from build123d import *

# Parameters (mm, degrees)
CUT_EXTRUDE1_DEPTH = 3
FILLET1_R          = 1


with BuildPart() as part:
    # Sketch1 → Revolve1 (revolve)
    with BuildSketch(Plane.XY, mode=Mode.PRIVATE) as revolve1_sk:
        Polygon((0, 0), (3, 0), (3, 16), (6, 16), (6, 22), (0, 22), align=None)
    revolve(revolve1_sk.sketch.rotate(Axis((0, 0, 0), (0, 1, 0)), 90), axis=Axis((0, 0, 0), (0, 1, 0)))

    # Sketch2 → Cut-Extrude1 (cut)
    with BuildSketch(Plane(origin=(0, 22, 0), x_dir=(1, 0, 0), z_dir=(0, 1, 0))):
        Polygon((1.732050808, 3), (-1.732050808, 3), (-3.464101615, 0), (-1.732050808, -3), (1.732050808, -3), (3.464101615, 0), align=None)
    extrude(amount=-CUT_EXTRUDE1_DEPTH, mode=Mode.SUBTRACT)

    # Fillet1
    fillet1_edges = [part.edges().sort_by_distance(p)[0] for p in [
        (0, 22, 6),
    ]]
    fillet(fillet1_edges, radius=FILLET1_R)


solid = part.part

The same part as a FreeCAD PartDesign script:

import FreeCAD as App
import Part
import Sketcher
from FreeCAD import Vector
Q = App.Units.Quantity


def edges_at(feature, points):
    """Names of the edges that pass closest to the given points."""
    edges = feature.Shape.Edges
    near = lambda p: min(range(len(edges)), key=lambda i: edges[i].distToShape(Part.Vertex(*p))[0])
    return sorted({f"Edge{near(p) + 1}" for p in points})

doc = App.newDocument("Part")
params = doc.addObject("Spreadsheet::Sheet", "Params")
for row, (alias, value) in enumerate([
    ("sketch1_width", "3 mm"),
    ("sketch1_height", "16 mm"),
    ("revolution_angle", "360 deg"),
    ("pocket1_length", "3 mm"),
    ("fillet_radius", "1 mm"),
], start=1):
    params.set(f"A{row}", alias)
    params.set(f"B{row}", "=" + value)
    params.setAlias(f"B{row}", alias)

body = doc.addObject("PartDesign::Body", "Body")

sketch1 = body.newObject("Sketcher::SketchObject", "Sketch")
sketch1.AttachmentSupport = (doc.getObject("XY_Plane"), [""])
sketch1.MapMode = "FlatFace"
sketch1.addGeometry(Part.LineSegment(Vector(0, 0, 0), Vector(3, 0, 0)), False)
sketch1.addGeometry(Part.LineSegment(Vector(3, 0, 0), Vector(3, 16, 0)), False)
sketch1.addGeometry(Part.LineSegment(Vector(3, 16, 0), Vector(6, 16, 0)), False)
sketch1.addGeometry(Part.LineSegment(Vector(6, 16, 0), Vector(6, 22, 0)), False)
sketch1.addGeometry(Part.LineSegment(Vector(6, 22, 0), Vector(0, 22, 0)), False)
sketch1.addGeometry(Part.LineSegment(Vector(0, 22, 0), Vector(0, 0, 0)), False)
sketch1.addConstraint(Sketcher.Constraint("Coincident", 0, 2, 1, 1))
sketch1.addConstraint(Sketcher.Constraint("Coincident", 1, 2, 2, 1))
sketch1.addConstraint(Sketcher.Constraint("Coincident", 2, 2, 3, 1))
sketch1.addConstraint(Sketcher.Constraint("Coincident", 3, 2, 4, 1))
sketch1.addConstraint(Sketcher.Constraint("Coincident", 4, 2, 5, 1))
sketch1.addConstraint(Sketcher.Constraint("Coincident", 5, 2, 0, 1))
sketch1.addConstraint(Sketcher.Constraint("Horizontal", 0))
sketch1.addConstraint(Sketcher.Constraint("Vertical", 1))
sketch1.addConstraint(Sketcher.Constraint("Horizontal", 2))
sketch1.addConstraint(Sketcher.Constraint("Vertical", 3))
sketch1.addConstraint(Sketcher.Constraint("Horizontal", 4))
sketch1.addConstraint(Sketcher.Constraint("Vertical", 5))
sketch1.addConstraint(Sketcher.Constraint("Coincident", 5, 2, -1, 1))
sketch1.addConstraint(Sketcher.Constraint("Equal", 0, 2))
sketch1.addConstraint(Sketcher.Constraint("Equal", 4, 3))
sketch1.addConstraint(Sketcher.Constraint("DistanceX", 0, 1, 0, 2, 3.0))
sketch1.addConstraint(Sketcher.Constraint("DistanceY", 1, 1, 1, 2, 16.0))
sketch1.setExpression("Constraints[15]", "Params.sketch1_width")
sketch1.setExpression("Constraints[16]", "Params.sketch1_height")
revolution = body.newObject("PartDesign::Revolution", "Revolution")
revolution.Profile = sketch1
revolution.ReferenceAxis = (sketch1, ["V_Axis"])
revolution.setExpression("Angle", "Params.revolution_angle")

sketch2 = body.newObject("Sketcher::SketchObject", "Sketch001")
sketch2.AttachmentSupport = (doc.getObject("XZ_Plane"), [""])
sketch2.MapMode = "FlatFace"
sketch2.AttachmentOffset = App.Placement(Vector(0, 0, -22), App.Rotation())
sketch2.addGeometry(Part.LineSegment(Vector(1.7, -3, 0), Vector(-1.7, -3, 0)), False)
sketch2.addGeometry(Part.LineSegment(Vector(-1.7, -3, 0), Vector(-3.5, 0, 0)), False)
sketch2.addGeometry(Part.LineSegment(Vector(-3.5, 0, 0), Vector(-1.7, 3, 0)), False)
sketch2.addGeometry(Part.LineSegment(Vector(-1.7, 3, 0), Vector(1.7, 3, 0)), False)
sketch2.addGeometry(Part.LineSegment(Vector(1.7, 3, 0), Vector(3.5, 0, 0)), False)
sketch2.addGeometry(Part.LineSegment(Vector(3.5, 0, 0), Vector(1.7, -3, 0)), False)
sketch2.addConstraint(Sketcher.Constraint("Coincident", 0, 2, 1, 1))
sketch2.addConstraint(Sketcher.Constraint("Coincident", 1, 2, 2, 1))
sketch2.addConstraint(Sketcher.Constraint("Coincident", 2, 2, 3, 1))
sketch2.addConstraint(Sketcher.Constraint("Coincident", 3, 2, 4, 1))
sketch2.addConstraint(Sketcher.Constraint("Coincident", 4, 2, 5, 1))
sketch2.addConstraint(Sketcher.Constraint("Coincident", 5, 2, 0, 1))
sketch2.addConstraint(Sketcher.Constraint("Horizontal", 0))
sketch2.addConstraint(Sketcher.Constraint("Horizontal", 3))
sketch2.addConstraint(Sketcher.Constraint("Symmetric", 0, 2, 3, 2, -1, 1))
sketch2.addConstraint(Sketcher.Constraint("Symmetric", 1, 2, 4, 2, -1, 1))
sketch2.addConstraint(Sketcher.Constraint("PointOnObject", 1, 2, -1))
sketch2.addConstraint(Sketcher.Constraint("Parallel", 2, 5))
sketch2.addConstraint(Sketcher.Constraint("Vertical", 0, 2, 2, 2))
sketch2.addConstraint(Sketcher.Constraint("Angle", 1, Q("120 deg")))
sketch2.addConstraint(Sketcher.Constraint("DistanceY", 0, 2, -1, 1, 3.0))
sketch2.addConstraint(Sketcher.Constraint("DistanceX", 0, 2, 0, 1, 3.464102))
pocket1 = body.newObject("PartDesign::Pocket", "Pocket")
pocket1.Profile = sketch2
pocket1.setExpression("Length", "Params.pocket1_length")
pocket1.Reversed = True
doc.recompute()

fillet = body.newObject("PartDesign::Fillet", "Fillet")
fillet.Base = (pocket1, edges_at(pocket1, [(0, 22, 6)]))
fillet.setExpression("Radius", "Params.fillet_radius")

doc.recompute()
